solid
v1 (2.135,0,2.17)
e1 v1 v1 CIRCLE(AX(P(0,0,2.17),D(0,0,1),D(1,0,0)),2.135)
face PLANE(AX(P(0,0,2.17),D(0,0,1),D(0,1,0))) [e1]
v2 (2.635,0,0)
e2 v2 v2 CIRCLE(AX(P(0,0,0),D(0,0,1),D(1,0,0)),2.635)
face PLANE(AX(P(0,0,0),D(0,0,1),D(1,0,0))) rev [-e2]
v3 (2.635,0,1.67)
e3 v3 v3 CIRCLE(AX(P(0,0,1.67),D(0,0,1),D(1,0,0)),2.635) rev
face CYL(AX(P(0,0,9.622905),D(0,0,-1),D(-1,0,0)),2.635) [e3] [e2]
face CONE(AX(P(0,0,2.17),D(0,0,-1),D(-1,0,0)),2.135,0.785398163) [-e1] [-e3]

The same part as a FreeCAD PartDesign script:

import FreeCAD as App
import Part
import Sketcher
Q = App.Units.Quantity


def edges_at(feature, points):
    """Names of the edges that pass closest to the given points."""
    edges = feature.Shape.Edges
    near = lambda p: min(range(len(edges)), key=lambda i: edges[i].distToShape(Part.Vertex(*p))[0])
    return sorted({f"Edge{near(p) + 1}" for p in points})

doc = App.newDocument("Part")
body = doc.addObject("PartDesign::Body", "Body")

# Sketch on XY plane
sketch1 = body.newObject("Sketcher::SketchObject", "Sketch")
sketch1.AttachmentSupport = (doc.getObject("XY_Plane"), [""])
sketch1.MapMode = "FlatFace"
sketch1.addGeometry(Part.Circle(App.Vector(0, 0, 0), App.Vector(0, 0, 1), 2.6), False)
sketch1.addConstraint([
    Sketcher.Constraint("Coincident", 0, 3, -1, 1),
    Sketcher.Constraint("Diameter", 0, Q("5.27 mm")),
])
pad1 = body.newObject("PartDesign::Pad", "Pad")
pad1.Profile = sketch1
pad1.Length = 2.17
doc.recompute()

chamfer = body.newObject("PartDesign::Chamfer", "Chamfer")
chamfer.Base = (pad1, edges_at(pad1, [(-2.635, 0, 2.17)]))
chamfer.Size = 0.5

doc.recompute()
